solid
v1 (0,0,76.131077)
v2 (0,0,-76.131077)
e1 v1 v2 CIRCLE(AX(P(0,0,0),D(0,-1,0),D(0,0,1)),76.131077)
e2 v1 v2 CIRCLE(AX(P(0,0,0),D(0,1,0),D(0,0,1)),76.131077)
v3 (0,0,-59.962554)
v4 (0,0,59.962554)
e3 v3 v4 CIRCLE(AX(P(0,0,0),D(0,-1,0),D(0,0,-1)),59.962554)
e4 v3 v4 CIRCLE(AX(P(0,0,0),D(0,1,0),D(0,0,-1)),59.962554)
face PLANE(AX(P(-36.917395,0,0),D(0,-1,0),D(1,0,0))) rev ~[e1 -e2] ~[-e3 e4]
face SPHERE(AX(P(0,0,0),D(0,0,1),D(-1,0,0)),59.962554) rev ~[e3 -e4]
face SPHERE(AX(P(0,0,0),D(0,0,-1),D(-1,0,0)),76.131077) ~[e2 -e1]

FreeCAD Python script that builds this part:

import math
import FreeCAD as App
import Part
import Sketcher

V = App.Vector
Q = App.Units.Quantity

doc = App.newDocument("Part")
params = doc.addObject("Spreadsheet::Sheet", "Params")
for row, (alias, value) in enumerate([
    ("revolution_angle", "180 deg"),
], start=1):
    params.set(f"A{row}", alias)
    params.set(f"B{row}", "=" + value)
    params.setAlias(f"B{row}", alias)

body = doc.addObject("PartDesign::Body", "Body")

# Sketch on XZ plane
sketch1 = body.newObject("Sketcher::SketchObject", "Sketch")
sketch1.AttachmentSupport = (doc.getObject("XZ_Plane"), [""])
sketch1.MapMode = "FlatFace"
sketch1.addGeometry([
    Part.LineSegment(V(0, 60, 0), V(0, 76, 0)),
    Part.ArcOfCircle(Part.Circle(V(0, 0, 0), V(0, 0, 1), 76), math.radians(90), math.radians(270)),
    Part.LineSegment(V(0, -76, 0), V(0, -60, 0)),
    Part.ArcOfCircle(Part.Circle(V(0, 0, 0), V(0, 0, 1), 60), math.radians(90), math.radians(270)),
], False)
sketch1.addConstraint([
    Sketcher.Constraint("Coincident", 0, 2, 1, 1),
    Sketcher.Constraint("Coincident", 1, 2, 2, 1),
    Sketcher.Constraint("Coincident", 2, 2, 3, 2),
    Sketcher.Constraint("Coincident", 3, 1, 0, 1),
    Sketcher.Constraint("Vertical", 0),
    Sketcher.Constraint("Vertical", 2),
    Sketcher.Constraint("Coincident", 1, 3, -1, 1),
    Sketcher.Constraint("Coincident", 3, 3, -1, 1),
    Sketcher.Constraint("PointOnObject", 0, 2, -2),
    Sketcher.Constraint("PointOnObject", 1, 2, -2),
    Sketcher.Constraint("Radius", 1, Q("76.131077 mm")),
    Sketcher.Constraint("Radius", 3, Q("59.962554 mm")),
])
revolution = body.newObject("PartDesign::Revolution", "Revolution")
revolution.Profile = sketch1
revolution.ReferenceAxis = (sketch1, ["V_Axis"])
revolution.setExpression("Angle", "Params.revolution_angle")

doc.recompute()
